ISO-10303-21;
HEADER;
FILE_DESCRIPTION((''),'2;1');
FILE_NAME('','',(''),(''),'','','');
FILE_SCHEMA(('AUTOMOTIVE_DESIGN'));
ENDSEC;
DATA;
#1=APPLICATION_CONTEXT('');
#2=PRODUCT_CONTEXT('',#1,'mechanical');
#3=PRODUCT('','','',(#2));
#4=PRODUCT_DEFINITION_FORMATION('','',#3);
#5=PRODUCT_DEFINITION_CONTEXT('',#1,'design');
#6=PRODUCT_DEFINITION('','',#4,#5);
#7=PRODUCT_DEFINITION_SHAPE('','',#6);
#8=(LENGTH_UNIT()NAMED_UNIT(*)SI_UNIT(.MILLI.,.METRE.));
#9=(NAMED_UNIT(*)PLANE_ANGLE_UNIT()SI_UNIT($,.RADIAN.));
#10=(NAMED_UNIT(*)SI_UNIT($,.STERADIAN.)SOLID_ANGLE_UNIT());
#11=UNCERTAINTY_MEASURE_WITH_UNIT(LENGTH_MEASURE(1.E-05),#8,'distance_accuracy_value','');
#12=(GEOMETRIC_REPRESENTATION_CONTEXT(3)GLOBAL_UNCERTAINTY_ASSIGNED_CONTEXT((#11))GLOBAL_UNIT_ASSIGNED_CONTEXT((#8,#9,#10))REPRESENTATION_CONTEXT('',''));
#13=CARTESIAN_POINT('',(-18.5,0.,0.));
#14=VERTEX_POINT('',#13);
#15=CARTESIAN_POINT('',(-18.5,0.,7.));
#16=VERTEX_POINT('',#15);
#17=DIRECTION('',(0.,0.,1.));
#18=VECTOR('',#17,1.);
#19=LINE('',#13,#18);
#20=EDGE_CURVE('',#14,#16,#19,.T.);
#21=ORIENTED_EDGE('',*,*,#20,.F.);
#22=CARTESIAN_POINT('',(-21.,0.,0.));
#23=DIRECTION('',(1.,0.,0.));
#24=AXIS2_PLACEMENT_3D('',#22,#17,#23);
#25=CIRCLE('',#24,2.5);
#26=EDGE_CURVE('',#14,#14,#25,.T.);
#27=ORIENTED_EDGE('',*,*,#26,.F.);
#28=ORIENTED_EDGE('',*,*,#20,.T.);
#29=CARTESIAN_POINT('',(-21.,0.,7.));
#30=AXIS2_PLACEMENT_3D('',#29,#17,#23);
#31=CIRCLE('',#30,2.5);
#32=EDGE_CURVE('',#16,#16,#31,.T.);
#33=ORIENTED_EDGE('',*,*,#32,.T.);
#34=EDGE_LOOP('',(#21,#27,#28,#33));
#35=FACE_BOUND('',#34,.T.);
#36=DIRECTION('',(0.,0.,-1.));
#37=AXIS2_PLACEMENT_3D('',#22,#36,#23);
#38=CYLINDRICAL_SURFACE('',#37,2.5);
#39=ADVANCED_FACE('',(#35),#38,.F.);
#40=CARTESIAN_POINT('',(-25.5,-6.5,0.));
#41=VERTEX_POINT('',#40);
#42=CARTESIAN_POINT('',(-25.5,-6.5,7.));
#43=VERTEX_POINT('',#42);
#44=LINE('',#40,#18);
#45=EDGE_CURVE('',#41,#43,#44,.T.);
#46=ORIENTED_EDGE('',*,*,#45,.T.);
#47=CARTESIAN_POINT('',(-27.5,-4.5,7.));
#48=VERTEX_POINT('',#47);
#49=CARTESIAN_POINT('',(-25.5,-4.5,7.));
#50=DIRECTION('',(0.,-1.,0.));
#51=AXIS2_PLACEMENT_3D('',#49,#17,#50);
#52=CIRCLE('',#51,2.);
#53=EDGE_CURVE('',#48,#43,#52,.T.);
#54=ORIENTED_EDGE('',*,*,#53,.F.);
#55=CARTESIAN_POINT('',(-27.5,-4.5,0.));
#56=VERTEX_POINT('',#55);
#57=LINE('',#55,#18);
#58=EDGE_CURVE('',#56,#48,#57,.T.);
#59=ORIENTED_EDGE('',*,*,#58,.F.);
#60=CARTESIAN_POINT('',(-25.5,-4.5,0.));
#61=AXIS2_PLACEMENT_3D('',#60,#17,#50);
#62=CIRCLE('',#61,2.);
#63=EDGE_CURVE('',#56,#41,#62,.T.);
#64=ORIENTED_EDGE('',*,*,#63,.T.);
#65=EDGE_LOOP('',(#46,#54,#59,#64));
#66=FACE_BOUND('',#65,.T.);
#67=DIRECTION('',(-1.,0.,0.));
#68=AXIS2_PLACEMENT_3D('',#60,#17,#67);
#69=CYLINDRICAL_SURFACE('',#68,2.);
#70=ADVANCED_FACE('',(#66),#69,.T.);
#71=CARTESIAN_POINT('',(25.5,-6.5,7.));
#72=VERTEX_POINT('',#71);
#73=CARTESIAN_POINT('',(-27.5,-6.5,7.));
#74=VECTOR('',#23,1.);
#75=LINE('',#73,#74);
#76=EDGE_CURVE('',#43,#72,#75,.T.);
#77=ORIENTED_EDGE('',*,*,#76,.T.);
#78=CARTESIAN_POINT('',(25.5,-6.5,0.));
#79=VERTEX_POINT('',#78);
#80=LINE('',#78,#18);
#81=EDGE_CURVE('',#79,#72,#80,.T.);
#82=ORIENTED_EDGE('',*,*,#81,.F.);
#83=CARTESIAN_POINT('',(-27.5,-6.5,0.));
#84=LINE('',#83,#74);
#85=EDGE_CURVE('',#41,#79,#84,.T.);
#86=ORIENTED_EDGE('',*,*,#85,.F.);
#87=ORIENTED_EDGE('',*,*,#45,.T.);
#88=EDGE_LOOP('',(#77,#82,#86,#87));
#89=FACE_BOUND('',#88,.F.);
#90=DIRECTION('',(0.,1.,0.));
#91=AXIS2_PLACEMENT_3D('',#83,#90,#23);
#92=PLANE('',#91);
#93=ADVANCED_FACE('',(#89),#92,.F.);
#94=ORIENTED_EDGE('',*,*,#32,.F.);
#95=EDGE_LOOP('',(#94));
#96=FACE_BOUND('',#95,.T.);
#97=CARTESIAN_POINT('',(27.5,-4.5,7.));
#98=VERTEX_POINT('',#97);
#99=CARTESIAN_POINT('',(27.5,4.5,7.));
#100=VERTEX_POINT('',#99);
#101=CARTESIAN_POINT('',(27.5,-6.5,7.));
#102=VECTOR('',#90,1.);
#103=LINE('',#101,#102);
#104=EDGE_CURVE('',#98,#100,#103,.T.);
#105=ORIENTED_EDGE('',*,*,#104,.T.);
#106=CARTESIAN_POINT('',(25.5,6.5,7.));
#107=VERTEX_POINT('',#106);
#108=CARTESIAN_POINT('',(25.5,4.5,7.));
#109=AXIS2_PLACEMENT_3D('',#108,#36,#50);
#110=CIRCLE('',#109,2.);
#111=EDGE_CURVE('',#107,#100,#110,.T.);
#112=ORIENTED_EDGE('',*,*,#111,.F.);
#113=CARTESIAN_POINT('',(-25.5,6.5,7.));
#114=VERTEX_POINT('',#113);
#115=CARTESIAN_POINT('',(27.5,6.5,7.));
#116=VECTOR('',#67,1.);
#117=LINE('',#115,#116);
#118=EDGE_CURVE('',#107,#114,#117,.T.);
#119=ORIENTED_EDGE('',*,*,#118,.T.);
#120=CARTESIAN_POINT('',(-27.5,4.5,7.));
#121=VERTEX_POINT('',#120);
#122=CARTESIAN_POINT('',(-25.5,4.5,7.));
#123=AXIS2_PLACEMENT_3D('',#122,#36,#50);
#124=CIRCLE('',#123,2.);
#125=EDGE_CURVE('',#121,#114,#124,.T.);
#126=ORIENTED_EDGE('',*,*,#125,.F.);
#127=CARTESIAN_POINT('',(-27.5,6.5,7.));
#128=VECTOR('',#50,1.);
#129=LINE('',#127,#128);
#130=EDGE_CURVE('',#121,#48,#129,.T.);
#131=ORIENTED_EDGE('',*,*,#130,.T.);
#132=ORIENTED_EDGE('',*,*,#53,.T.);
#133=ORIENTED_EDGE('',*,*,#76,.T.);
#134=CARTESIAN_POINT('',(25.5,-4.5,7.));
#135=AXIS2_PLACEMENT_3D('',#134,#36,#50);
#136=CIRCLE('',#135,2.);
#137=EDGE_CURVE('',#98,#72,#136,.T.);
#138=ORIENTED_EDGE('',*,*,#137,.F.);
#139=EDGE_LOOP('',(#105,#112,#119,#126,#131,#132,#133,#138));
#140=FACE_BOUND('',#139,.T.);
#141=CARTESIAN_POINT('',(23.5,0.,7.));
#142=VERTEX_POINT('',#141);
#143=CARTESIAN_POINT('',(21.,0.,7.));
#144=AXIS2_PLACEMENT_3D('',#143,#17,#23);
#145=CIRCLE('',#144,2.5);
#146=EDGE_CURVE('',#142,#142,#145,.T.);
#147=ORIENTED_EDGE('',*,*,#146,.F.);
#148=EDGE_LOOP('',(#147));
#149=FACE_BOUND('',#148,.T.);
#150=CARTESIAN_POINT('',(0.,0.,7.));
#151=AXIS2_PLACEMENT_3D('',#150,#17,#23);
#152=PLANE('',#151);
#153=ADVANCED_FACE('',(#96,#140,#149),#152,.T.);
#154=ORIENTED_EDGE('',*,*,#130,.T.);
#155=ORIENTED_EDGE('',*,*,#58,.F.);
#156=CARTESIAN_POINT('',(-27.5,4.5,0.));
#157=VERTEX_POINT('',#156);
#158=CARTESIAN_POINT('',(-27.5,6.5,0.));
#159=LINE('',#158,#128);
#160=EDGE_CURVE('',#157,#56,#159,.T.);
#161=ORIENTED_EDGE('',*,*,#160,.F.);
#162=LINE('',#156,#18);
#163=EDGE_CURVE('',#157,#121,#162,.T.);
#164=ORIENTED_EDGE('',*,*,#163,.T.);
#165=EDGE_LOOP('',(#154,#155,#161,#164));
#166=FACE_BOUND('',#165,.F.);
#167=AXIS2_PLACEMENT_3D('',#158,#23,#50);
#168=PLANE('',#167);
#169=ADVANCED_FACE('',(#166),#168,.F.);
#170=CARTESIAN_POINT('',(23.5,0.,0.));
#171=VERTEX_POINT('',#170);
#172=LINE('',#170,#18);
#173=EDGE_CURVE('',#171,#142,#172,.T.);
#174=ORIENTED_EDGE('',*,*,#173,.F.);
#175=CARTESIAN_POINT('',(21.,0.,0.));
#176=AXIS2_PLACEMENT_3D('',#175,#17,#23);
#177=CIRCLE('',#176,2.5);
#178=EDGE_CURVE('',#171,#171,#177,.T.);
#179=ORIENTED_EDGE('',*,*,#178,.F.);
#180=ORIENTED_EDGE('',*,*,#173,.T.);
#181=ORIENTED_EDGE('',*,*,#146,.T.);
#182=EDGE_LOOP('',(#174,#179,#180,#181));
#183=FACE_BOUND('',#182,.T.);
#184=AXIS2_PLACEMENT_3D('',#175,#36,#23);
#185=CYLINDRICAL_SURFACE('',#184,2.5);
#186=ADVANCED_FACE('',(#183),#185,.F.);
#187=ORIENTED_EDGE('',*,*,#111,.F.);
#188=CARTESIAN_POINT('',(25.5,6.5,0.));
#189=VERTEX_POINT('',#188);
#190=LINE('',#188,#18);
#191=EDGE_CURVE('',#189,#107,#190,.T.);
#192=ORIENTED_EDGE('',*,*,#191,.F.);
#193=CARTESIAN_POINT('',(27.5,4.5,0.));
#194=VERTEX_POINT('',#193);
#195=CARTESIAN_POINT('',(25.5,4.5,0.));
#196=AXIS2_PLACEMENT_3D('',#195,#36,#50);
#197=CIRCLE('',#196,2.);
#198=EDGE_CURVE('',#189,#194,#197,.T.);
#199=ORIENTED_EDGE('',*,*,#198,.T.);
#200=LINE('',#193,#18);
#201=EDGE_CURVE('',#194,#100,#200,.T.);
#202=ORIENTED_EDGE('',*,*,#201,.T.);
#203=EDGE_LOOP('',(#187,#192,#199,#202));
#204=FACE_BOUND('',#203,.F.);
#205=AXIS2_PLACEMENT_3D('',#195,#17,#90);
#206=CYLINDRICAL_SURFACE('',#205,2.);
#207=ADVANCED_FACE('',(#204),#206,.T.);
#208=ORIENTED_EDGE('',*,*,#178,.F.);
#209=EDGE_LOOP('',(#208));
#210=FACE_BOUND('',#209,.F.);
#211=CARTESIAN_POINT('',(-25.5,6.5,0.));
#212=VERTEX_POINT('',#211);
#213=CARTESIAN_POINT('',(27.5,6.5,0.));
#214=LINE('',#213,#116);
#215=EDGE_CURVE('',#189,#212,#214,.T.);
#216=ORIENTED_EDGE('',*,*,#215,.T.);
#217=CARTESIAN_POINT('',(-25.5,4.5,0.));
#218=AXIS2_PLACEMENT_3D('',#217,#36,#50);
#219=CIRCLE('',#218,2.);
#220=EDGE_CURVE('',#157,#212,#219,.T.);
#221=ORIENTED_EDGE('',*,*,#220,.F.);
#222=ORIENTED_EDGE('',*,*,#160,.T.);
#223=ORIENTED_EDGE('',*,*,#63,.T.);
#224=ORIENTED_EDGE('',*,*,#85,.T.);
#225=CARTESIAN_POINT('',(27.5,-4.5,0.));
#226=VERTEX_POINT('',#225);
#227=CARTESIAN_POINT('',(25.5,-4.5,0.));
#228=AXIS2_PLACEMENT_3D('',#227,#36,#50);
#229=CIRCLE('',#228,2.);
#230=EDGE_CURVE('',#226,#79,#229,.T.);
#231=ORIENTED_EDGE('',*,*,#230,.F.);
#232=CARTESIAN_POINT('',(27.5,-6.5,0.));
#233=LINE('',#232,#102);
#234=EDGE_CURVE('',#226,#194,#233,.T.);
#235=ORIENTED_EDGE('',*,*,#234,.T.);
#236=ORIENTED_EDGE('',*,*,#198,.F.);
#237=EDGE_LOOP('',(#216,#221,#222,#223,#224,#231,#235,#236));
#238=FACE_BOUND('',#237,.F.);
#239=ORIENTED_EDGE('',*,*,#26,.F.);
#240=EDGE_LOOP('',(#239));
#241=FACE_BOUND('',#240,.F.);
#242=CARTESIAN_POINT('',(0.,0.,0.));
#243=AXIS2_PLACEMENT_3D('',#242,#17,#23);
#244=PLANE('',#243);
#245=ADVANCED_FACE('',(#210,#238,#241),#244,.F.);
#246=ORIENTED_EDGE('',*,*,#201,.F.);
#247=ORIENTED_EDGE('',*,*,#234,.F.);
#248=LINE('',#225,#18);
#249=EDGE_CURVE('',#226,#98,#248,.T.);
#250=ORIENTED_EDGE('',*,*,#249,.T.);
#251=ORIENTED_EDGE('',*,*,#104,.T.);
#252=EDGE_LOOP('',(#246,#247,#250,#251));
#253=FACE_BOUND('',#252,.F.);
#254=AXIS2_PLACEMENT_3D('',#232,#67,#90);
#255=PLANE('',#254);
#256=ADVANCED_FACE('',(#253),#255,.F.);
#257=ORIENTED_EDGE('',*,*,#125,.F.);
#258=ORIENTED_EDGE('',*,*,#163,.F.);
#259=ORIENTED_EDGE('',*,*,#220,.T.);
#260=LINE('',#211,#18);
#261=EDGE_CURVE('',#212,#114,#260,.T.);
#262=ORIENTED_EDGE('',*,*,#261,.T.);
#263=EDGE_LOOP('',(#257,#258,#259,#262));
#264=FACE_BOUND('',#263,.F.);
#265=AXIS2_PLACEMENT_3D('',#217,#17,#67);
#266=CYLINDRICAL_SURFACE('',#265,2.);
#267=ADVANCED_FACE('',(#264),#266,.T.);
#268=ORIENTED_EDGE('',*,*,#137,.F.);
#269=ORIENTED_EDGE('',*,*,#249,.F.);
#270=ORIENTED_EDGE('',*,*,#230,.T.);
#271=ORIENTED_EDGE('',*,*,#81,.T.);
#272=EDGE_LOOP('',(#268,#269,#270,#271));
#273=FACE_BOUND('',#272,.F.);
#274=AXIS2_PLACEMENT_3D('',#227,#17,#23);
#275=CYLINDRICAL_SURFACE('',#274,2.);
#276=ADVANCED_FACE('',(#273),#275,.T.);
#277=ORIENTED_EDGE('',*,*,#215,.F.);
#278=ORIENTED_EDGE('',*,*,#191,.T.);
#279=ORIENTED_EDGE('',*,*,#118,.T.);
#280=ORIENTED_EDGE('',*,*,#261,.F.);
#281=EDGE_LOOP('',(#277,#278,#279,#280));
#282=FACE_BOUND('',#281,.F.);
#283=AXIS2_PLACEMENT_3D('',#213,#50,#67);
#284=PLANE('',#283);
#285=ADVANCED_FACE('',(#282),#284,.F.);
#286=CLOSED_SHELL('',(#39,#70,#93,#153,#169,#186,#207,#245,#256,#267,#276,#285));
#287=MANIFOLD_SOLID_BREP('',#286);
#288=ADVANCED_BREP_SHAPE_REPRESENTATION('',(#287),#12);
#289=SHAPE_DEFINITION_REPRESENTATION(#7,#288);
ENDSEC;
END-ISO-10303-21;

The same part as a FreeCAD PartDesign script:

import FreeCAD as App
import Part
import Sketcher


def edges_at(feature, points):
    """Names of the edges that pass closest to the given points."""
    edges = feature.Shape.Edges
    near = lambda p: min(range(len(edges)), key=lambda i: edges[i].distToShape(Part.Vertex(*p))[0])
    return sorted({f"Edge{near(p) + 1}" for p in points})

doc = App.newDocument("Part")
body = doc.addObject("PartDesign::Body", "Body")

# Sketch on XY plane
sketch1 = doc.addObject("Sketcher::SketchObject", "Sketch")
body.addObject(sketch1)
sketch1.AttachmentSupport = (doc.XY_Plane, [""])
sketch1.MapMode = "FlatFace"
sketch1.addGeometry([
    Part.LineSegment(App.Vector(-27.5, 6.5, 0), App.Vector(-27.5, -6.5, 0)),  # 0
    Part.LineSegment(App.Vector(-27.5, -6.5, 0), App.Vector(27.5, -6.5, 0)),  # 1
    Part.LineSegment(App.Vector(27.5, -6.5, 0), App.Vector(27.5, 6.5, 0)),  # 2
    Part.LineSegment(App.Vector(27.5, 6.5, 0), App.Vector(-27.5, 6.5, 0)),  # 3
    Part.Circle(App.Vector(-21, 0, 0), App.Vector(0, 0, 1), 2.5),  # 4
    Part.Circle(App.Vector(21, 0, 0), App.Vector(0, 0, 1), 2.5),  # 5
], False)
sketch1.addConstraint([
    Sketcher.Constraint("Coincident", 0, 2, 1, 1),
    Sketcher.Constraint("Coincident", 1, 2, 2, 1),
    Sketcher.Constraint("Coincident", 2, 2, 3, 1),
    Sketcher.Constraint("Coincident", 3, 2, 0, 1),
    Sketcher.Constraint("Vertical", 0),
    Sketcher.Constraint("Horizontal", 1),
    Sketcher.Constraint("Vertical", 2),
    Sketcher.Constraint("Horizontal", 3),
    Sketcher.Constraint("Equal", 4, 5),
    Sketcher.Constraint("Symmetric", 4, 3, 5, 3, -1, 1),
    Sketcher.Constraint("Symmetric", 0, 2, 2, 2, -1, 1),
    Sketcher.Constraint("PointOnObject", 4, 3, -1),
    Sketcher.Constraint("Diameter", 4, 5.0),
    Sketcher.Constraint("DistanceX", 1, 1, 1, 2, 55.0),
    Sketcher.Constraint("DistanceY", 0, 2, 0, 1, 13.0),
    Sketcher.Constraint("DistanceX", 4, 3, -1, 1, 21.0),
])
pad1 = doc.addObject("PartDesign::Pad", "Pad")
body.addObject(pad1)
pad1.Profile = sketch1
pad1.Length = 7
doc.recompute()

fillet = doc.addObject("PartDesign::Fillet", "Fillet")
body.addObject(fillet)
fillet.Base = (pad1, edges_at(pad1, [
    (27.5, 6.5, 3.5),
    (27.5, -6.5, 3.5),
    (-27.5, 6.5, 3.5),
    (-27.5, -6.5, 3.5),
]))
fillet.Radius = 2

doc.recompute()
